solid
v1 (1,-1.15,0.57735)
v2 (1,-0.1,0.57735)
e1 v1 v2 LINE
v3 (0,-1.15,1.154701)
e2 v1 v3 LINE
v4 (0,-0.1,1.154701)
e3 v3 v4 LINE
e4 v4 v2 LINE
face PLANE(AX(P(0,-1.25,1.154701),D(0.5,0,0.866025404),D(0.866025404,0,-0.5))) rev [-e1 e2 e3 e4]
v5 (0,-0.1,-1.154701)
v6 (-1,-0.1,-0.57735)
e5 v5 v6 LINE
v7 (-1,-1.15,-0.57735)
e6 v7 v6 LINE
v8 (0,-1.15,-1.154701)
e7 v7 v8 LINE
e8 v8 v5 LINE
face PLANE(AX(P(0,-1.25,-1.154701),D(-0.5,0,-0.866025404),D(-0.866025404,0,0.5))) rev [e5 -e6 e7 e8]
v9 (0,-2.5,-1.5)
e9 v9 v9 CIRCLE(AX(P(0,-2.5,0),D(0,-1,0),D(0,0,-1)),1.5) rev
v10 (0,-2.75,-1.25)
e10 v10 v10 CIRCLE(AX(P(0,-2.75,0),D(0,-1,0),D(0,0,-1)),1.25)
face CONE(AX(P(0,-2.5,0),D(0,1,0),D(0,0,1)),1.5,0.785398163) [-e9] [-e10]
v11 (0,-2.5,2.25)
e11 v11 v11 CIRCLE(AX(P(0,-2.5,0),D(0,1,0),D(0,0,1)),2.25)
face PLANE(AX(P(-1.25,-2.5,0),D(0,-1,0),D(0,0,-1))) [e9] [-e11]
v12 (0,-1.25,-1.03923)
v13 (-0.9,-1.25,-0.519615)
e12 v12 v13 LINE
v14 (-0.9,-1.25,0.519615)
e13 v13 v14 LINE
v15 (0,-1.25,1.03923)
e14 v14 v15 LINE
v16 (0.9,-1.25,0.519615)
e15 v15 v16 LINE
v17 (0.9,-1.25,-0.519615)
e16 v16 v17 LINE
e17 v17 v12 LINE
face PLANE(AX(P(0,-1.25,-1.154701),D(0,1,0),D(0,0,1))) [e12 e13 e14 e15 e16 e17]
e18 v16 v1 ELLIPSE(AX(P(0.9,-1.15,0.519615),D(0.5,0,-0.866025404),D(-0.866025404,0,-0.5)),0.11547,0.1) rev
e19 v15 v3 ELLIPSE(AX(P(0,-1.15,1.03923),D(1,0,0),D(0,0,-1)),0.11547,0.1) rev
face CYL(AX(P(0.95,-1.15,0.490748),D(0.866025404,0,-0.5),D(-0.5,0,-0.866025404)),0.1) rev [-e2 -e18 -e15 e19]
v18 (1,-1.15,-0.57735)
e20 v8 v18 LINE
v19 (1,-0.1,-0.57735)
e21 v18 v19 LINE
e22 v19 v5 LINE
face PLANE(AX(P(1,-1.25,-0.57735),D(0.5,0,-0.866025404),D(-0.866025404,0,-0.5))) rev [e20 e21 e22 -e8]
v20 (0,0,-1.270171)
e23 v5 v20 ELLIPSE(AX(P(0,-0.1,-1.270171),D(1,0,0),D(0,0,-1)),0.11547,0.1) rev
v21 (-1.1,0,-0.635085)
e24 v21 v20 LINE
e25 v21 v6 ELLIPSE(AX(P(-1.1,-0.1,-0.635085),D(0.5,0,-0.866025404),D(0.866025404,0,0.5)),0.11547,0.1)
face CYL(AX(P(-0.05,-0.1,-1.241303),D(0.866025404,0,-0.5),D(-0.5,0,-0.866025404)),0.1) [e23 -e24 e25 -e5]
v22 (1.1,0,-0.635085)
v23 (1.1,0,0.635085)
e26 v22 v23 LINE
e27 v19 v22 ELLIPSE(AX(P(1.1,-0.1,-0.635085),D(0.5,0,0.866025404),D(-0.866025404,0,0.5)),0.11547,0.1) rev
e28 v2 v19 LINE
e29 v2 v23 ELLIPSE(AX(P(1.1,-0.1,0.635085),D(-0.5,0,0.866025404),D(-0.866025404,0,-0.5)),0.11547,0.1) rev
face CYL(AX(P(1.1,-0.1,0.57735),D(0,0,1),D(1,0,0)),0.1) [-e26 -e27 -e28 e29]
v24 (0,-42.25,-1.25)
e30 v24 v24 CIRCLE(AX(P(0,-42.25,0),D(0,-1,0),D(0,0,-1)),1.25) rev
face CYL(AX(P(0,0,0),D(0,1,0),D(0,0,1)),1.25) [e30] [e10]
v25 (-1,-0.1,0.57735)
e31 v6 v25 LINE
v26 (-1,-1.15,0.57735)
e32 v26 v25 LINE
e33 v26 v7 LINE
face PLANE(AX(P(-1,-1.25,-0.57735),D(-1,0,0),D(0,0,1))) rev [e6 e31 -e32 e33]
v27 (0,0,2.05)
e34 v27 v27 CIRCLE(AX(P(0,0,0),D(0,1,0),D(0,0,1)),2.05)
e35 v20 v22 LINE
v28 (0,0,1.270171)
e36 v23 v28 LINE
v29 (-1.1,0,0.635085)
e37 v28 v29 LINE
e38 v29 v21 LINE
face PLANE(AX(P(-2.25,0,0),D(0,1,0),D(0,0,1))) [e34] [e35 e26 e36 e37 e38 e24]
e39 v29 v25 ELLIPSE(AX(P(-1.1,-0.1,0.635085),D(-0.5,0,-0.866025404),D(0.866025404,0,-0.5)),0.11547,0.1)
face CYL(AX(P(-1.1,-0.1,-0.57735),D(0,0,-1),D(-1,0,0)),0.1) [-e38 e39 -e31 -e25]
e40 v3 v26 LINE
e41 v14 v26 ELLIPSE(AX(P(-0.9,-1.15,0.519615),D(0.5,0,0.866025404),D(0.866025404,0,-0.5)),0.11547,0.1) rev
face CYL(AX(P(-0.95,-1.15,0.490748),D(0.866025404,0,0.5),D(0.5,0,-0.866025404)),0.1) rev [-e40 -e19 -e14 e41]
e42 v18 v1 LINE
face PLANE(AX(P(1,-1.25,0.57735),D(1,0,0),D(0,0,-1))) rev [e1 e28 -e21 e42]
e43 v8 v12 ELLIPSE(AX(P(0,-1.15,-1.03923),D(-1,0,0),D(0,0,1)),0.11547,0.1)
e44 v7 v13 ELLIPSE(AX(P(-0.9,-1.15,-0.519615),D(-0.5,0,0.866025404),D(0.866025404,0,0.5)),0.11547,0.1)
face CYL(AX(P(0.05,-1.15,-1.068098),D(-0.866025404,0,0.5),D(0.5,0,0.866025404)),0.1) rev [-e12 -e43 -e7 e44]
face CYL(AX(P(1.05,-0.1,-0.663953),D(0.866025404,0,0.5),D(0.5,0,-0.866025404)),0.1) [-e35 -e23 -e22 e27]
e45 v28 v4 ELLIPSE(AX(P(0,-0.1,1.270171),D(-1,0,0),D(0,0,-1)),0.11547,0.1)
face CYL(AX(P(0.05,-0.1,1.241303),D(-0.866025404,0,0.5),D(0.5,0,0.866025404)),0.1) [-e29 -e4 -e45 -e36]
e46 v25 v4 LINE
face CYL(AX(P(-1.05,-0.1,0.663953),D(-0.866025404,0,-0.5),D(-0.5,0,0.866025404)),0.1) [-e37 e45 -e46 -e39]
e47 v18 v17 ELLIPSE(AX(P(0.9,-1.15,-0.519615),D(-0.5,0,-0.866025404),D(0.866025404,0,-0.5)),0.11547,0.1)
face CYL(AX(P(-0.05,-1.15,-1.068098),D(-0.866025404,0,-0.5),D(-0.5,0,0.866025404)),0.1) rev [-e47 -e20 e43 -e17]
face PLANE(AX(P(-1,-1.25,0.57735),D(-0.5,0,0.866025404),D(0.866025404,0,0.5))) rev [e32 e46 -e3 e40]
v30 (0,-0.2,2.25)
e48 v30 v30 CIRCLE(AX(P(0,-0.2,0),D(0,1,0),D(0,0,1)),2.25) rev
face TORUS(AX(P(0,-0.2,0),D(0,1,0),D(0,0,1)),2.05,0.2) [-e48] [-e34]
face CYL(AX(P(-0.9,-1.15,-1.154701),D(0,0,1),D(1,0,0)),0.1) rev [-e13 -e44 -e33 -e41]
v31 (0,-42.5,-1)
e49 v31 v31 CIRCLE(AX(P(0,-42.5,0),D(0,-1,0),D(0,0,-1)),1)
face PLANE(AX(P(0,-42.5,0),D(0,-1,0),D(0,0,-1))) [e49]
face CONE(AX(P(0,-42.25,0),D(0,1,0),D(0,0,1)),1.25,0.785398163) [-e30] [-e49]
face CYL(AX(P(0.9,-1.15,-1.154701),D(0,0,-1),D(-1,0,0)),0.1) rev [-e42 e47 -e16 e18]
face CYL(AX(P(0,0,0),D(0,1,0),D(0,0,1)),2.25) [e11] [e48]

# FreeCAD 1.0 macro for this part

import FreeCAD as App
import Part
import Sketcher
from FreeCAD import Vector
Q = App.Units.Quantity


def edges_at(feature, points):
    """Names of the edges that pass closest to the given points."""
    edges = feature.Shape.Edges
    near = lambda p: min(range(len(edges)), key=lambda i: edges[i].distToShape(Part.Vertex(*p))[0])
    return sorted({f"Edge{near(p) + 1}" for p in points})


def add_polygon(sketch, points):
    """Adds a closed chain of lines whose ends are joined by coincident constraints."""
    first, n = sketch.GeometryCount, len(points)
    for a, b in zip(points, points[1:] + points[:1]):
        sketch.addGeometry(Part.LineSegment(App.Vector(*a, 0), App.Vector(*b, 0)), False)
    for i in range(n):
        sketch.addConstraint(Sketcher.Constraint("Coincident", first + i, 2, first + (i + 1) % n, 1))

doc = App.newDocument("Part")
params = doc.addObject("Spreadsheet::Sheet", "Params")
for row, (alias, value) in enumerate([
    ("sketch1_width", "1 mm"),
    ("sketch1_height", "40 mm"),
    ("sketch1_height2", "42.5 mm"),
    ("sketch1_width2", "1.25 mm"),
    ("revolution_angle", "360 deg"),
    ("chamfer_size", "0.25 mm"),
    ("fillet_radius", "0.2 mm"),
    ("pocket1_length", "1.25 mm"),
    ("fillet2_radius", "0.1 mm"),
], start=1):
    params.set(f"A{row}", alias)
    params.set(f"B{row}", "=" + value)
    params.setAlias(f"B{row}", alias)

body = doc.addObject("PartDesign::Body", "Body")

sketch1 = body.newObject("Sketcher::SketchObject", "Sketch")
sketch1.AttachmentSupport = (doc.getObject("XY_Plane"), [""])
sketch1.MapMode = "FlatFace"
add_polygon(sketch1, [(-1.2, -42.5), (0, -42.5), (0, 0), (-2.2, 0), (-2.2, -2.5), (-1.2, -2.5)])
sketch1.addConstraint([
    Sketcher.Constraint("Horizontal", 0),
    Sketcher.Constraint("Vertical", 1),
    Sketcher.Constraint("Horizontal", 2),
    Sketcher.Constraint("Vertical", 3),
    Sketcher.Constraint("Horizontal", 4),
    Sketcher.Constraint("Vertical", 5),
    Sketcher.Constraint("Coincident", 1, 2, -1, 1),
    Sketcher.Constraint("DistanceX", 4, 1, 4, 2, Q("1 mm")),
    Sketcher.Constraint("DistanceY", 5, 2, 5, 1, Q("40 mm")),
    Sketcher.Constraint("DistanceY", 1, 1, 1, 2, Q("42.5 mm")),
    Sketcher.Constraint("DistanceX", 0, 1, 0, 2, Q("1.25 mm")),
])
sketch1.setExpression("Constraints[13]", "Params.sketch1_width")
sketch1.setExpression("Constraints[14]", "Params.sketch1_height")
sketch1.setExpression("Constraints[15]", "Params.sketch1_height2")
sketch1.setExpression("Constraints[16]", "Params.sketch1_width2")
revolution = body.newObject("PartDesign::Revolution", "Revolution")
revolution.Profile = sketch1
revolution.ReferenceAxis = (sketch1, ["V_Axis"])
revolution.setExpression("Angle", "Params.revolution_angle")
doc.recompute()

chamfer = body.newObject("PartDesign::Chamfer", "Chamfer")
chamfer.Base = (revolution, edges_at(revolution, [(0, -2.5, -1.25), (0, -42.5, -1.25)]))
chamfer.setExpression("Size", "Params.chamfer_size")
doc.recompute()

fillet = body.newObject("PartDesign::Fillet", "Fillet")
fillet.Base = (chamfer, edges_at(chamfer, [(0, 0, -2.25)]))
fillet.setExpression("Radius", "Params.fillet_radius")

sketch2 = body.newObject("Sketcher::SketchObject", "Sketch001")
sketch2.AttachmentSupport = (doc.getObject("XZ_Plane"), [""])
sketch2.MapMode = "FlatFace"
add_polygon(sketch2, [(0, -1.2), (-1, -0.6), (-1, 0.6), (0, 1.2), (1, 0.6), (1, -0.6)])
sketch2.addConstraint([
    Sketcher.Constraint("Vertical", 1),
    Sketcher.Constraint("Vertical", 4),
    Sketcher.Constraint("Symmetric", 0, 2, 3, 2, -1, 1),
    Sketcher.Constraint("Symmetric", 2, 2, 5, 2, -1, 1),
    Sketcher.Constraint("PointOnObject", 2, 2, -2),
    Sketcher.Constraint("Parallel", 2, 5),
    Sketcher.Constraint("Horizontal", 1, 2, 3, 2),
    Sketcher.Constraint("Angle", 0, Q("150 deg")),
    Sketcher.Constraint("DistanceX", 0, 2, -1, 1, Q("1 mm")),
    Sketcher.Constraint("DistanceY", 1, 1, 1, 2, Q("1.154701 mm")),
])
pocket1 = body.newObject("PartDesign::Pocket", "Pocket")
pocket1.Profile = sketch2
pocket1.setExpression("Length", "Params.pocket1_length")
pocket1.Reversed = True
doc.recompute()

fillet2 = body.newObject("PartDesign::Fillet", "Fillet001")
fillet2.Base = (pocket1, edges_at(pocket1, [
    (0.5, -1.25, -0.866),
    (1, -1.25, 0),
    (0.5, -1.25, 0.866),
    (-0.5, -1.25, 0.866),
    (-1, -1.25, 0),
    (-0.5, -1.25, -0.866),
    (0.5, 0, -0.866),
    (-0.5, 0, -0.866),
    (-1, 0, 0),
    (-0.5, 0, 0.866),
    (0.5, 0, 0.866),
    (1, 0, 0),
]))
fillet2.setExpression("Radius", "Params.fillet2_radius")

doc.recompute()
